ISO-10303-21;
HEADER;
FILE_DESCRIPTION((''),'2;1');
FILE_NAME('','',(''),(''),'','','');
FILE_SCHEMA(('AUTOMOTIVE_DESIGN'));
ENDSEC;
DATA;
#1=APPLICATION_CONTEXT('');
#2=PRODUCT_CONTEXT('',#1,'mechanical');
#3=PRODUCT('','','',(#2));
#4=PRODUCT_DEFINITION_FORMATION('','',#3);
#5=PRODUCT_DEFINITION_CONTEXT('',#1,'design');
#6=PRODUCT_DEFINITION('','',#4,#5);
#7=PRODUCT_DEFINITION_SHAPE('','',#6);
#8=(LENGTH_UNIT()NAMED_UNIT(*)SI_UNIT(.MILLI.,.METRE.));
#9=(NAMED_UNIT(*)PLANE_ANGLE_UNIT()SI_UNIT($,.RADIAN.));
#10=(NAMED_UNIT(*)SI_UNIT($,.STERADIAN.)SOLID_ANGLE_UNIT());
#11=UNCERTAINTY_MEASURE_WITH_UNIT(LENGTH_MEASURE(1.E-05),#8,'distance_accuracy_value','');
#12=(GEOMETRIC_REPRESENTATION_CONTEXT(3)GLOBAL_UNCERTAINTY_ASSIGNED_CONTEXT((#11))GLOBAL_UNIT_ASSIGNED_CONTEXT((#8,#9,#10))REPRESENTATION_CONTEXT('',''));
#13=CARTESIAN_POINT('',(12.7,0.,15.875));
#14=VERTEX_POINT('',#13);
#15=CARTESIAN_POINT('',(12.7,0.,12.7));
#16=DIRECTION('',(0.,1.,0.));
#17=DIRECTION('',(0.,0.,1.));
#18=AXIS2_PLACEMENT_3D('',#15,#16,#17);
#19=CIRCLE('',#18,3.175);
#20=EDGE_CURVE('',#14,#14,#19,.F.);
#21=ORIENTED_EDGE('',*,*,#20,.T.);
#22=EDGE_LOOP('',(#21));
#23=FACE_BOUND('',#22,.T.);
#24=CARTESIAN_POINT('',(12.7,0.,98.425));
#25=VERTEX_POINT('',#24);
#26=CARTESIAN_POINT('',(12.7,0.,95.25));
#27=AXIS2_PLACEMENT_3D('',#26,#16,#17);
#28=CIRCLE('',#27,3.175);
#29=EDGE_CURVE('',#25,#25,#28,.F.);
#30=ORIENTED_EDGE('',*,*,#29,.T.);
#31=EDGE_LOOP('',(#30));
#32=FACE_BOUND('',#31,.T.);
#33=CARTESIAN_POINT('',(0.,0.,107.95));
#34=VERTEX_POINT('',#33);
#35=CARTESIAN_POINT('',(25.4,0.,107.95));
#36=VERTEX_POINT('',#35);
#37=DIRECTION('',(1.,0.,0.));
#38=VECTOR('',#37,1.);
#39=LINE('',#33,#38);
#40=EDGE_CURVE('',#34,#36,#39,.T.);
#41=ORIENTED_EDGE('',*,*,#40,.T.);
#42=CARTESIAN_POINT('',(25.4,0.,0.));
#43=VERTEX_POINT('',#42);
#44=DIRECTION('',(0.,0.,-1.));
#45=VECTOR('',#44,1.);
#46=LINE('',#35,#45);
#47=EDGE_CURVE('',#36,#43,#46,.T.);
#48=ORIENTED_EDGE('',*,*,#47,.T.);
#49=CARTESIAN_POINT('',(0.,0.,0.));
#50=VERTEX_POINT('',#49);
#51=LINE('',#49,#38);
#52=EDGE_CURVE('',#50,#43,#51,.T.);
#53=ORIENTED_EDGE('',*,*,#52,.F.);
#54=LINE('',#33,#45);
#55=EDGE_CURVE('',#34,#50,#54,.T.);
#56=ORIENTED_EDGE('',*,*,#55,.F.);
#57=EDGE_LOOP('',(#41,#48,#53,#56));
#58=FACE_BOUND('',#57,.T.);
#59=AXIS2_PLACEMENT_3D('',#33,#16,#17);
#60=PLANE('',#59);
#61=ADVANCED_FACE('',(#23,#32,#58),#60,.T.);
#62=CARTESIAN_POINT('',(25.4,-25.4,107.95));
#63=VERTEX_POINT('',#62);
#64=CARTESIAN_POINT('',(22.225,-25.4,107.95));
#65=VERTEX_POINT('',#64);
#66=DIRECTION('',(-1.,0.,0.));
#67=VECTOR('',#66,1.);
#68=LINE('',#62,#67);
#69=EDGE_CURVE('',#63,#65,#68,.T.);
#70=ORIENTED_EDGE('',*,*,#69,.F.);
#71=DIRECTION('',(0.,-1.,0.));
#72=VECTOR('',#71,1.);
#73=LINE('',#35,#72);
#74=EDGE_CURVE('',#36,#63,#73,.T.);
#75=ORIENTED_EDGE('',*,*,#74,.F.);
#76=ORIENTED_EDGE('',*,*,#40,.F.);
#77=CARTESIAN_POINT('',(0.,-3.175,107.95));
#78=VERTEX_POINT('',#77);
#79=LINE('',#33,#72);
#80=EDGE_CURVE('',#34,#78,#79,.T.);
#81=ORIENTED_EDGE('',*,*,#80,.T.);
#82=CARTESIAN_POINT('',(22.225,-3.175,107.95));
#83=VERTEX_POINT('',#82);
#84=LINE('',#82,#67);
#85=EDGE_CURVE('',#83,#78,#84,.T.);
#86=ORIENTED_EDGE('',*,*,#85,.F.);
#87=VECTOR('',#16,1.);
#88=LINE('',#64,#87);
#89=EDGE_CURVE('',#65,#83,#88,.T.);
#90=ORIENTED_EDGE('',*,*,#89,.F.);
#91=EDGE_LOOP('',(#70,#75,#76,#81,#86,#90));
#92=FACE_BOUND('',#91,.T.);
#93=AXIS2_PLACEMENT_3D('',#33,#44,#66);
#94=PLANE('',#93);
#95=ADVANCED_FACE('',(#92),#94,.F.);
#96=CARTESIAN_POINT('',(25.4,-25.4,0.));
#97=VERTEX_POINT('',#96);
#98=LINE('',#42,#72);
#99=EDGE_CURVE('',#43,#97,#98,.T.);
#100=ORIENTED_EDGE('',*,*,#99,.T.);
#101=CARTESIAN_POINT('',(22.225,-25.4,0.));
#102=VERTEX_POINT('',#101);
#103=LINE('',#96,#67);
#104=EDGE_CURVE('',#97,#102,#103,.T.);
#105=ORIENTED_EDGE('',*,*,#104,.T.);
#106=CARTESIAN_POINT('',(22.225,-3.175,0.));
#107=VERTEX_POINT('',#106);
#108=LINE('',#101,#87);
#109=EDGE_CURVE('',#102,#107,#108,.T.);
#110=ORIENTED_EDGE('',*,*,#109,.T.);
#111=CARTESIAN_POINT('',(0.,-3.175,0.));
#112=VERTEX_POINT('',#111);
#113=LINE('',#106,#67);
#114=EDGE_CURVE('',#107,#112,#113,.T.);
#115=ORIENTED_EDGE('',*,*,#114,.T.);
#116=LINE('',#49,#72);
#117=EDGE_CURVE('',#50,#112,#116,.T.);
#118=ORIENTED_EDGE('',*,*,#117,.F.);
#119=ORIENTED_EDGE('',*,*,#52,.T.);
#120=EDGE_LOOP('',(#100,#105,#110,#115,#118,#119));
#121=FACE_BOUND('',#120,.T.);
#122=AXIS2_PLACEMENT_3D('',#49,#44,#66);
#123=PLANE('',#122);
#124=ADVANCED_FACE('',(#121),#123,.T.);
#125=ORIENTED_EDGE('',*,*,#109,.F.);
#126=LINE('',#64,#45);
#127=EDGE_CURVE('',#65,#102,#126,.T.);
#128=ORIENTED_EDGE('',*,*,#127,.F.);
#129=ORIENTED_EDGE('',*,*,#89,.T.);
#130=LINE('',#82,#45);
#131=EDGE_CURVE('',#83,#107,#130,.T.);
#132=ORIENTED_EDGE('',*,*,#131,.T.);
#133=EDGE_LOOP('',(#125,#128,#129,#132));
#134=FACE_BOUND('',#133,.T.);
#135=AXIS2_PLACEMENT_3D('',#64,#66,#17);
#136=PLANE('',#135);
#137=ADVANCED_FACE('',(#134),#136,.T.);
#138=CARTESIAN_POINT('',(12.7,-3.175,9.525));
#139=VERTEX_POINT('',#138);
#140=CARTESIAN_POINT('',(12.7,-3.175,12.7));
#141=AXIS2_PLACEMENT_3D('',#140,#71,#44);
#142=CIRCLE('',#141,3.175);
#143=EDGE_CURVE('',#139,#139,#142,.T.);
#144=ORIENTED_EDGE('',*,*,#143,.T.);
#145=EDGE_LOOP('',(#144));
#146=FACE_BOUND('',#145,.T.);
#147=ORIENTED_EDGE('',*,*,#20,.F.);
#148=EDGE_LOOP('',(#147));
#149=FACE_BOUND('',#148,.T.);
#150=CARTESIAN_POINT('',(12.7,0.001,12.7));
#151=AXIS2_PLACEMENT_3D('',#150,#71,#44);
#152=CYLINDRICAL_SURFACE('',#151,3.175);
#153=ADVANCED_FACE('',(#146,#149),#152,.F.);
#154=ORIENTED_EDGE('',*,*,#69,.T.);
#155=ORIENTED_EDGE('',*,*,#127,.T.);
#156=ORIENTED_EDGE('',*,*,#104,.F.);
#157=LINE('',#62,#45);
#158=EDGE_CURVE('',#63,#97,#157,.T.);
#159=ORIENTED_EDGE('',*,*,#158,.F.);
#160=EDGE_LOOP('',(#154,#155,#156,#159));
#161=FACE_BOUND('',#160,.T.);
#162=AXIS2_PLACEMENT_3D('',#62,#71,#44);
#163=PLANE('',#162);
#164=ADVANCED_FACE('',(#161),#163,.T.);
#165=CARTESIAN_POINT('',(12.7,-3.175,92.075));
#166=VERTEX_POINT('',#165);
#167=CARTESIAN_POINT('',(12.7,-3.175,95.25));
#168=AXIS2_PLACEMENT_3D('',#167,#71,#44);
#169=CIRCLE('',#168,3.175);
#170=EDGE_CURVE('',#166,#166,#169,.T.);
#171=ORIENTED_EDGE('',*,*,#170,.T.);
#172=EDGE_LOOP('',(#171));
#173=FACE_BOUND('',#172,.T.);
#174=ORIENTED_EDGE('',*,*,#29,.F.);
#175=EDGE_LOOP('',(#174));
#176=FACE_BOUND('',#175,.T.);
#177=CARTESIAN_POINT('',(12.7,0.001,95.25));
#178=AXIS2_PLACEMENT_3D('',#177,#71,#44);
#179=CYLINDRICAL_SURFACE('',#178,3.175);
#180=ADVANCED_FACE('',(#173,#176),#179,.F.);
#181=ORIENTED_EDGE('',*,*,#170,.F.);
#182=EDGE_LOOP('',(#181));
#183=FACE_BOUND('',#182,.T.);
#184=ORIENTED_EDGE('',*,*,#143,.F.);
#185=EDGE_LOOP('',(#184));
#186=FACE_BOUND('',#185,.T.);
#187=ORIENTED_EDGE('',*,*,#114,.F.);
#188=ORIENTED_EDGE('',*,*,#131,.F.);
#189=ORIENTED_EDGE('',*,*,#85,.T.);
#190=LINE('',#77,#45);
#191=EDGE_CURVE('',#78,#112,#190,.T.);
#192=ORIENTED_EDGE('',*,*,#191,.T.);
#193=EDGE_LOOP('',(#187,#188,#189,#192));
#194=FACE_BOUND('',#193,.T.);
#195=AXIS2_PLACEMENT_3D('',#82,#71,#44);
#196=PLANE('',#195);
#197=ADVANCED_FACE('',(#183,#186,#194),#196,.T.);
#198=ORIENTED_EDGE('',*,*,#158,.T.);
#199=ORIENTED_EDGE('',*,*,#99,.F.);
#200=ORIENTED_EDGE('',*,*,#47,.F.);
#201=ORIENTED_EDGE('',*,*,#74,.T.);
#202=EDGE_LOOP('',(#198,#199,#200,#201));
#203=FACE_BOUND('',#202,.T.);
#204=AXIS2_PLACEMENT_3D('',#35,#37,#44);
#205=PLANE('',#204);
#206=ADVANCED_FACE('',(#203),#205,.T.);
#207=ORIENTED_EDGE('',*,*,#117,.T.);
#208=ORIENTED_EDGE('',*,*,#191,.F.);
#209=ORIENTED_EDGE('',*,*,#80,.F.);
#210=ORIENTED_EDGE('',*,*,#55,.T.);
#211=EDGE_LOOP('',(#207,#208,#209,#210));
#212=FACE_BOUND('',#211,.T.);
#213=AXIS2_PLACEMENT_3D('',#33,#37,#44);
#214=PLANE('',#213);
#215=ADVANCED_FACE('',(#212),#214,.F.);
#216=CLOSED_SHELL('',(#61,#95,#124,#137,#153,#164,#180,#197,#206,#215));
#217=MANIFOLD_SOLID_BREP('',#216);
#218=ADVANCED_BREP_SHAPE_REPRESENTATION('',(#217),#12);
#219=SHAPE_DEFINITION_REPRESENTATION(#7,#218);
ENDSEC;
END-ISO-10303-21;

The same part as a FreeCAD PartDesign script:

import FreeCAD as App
import Part
import Sketcher

V = App.Vector
Q = App.Units.Quantity


def add_polygon(sketch, points):
    """Adds a closed chain of lines whose ends are joined by coincident constraints."""
    first, n = sketch.GeometryCount, len(points)
    for a, b in zip(points, points[1:] + points[:1]):
        sketch.addGeometry(Part.LineSegment(App.Vector(*a, 0), App.Vector(*b, 0)), False)
    for i in range(n):
        sketch.addConstraint(Sketcher.Constraint("Coincident", first + i, 2, first + (i + 1) % n, 1))

doc = App.newDocument("Part")
params = doc.addObject("Spreadsheet::Sheet", "Params")
for row, (alias, value) in enumerate([
    ("sketch1_width", "1 in"),
    ("sketch1_width2", "0.875 in"),
    ("pad1_length", "4.25 in"),
    ("sketch2_diameter", "0.25 in"),
    ("sketch3_diameter", "0.25 in"),
], start=1):
    params.set(f"A{row}", alias)
    params.set(f"B{row}", "=" + value)
    params.setAlias(f"B{row}", alias)

body = doc.addObject("PartDesign::Body", "Body")

# Sketch on XY plane
sketch1 = body.newObject("Sketcher::SketchObject", "Sketch")
sketch1.AttachmentSupport = (doc.getObject("XY_Plane"), [""])
sketch1.MapMode = "FlatFace"
add_polygon(sketch1, [(25.4, 0), (0, 0), (0, -3.175), (22.225, -3.175), (22.225, -25.4), (25.4, -25.4)])  # lines 0-5
sketch1.addConstraint([
    Sketcher.Constraint("Horizontal", 0),
    Sketcher.Constraint("Vertical", 1),
    Sketcher.Constraint("Horizontal", 2),
    Sketcher.Constraint("Vertical", 3),
    Sketcher.Constraint("Horizontal", 4),
    Sketcher.Constraint("Vertical", 5),
    Sketcher.Constraint("Coincident", 0, 2, -1, 1),
    Sketcher.Constraint("Equal", 4, 1),
    Sketcher.Constraint("Equal", 2, 3),
    Sketcher.Constraint("DistanceX", 0, 2, 0, 1, Q("1 in")),
    Sketcher.Constraint("DistanceX", 2, 1, 2, 2, Q("0.875 in")),
])
sketch1.setExpression("Constraints[15]", "Params.sketch1_width")
sketch1.setExpression("Constraints[16]", "Params.sketch1_width2")
pad1 = body.newObject("PartDesign::Pad", "Pad")
pad1.Profile = sketch1
pad1.setExpression("Length", "Params.pad1_length")

# Sketch on XZ plane
sketch2 = body.newObject("Sketcher::SketchObject", "Sketch001")
sketch2.AttachmentSupport = (doc.getObject("XZ_Plane"), [""])
sketch2.MapMode = "FlatFace"
sketch2.AttachmentOffset = App.Placement(V(0, 0, 0.125 * 25.4), App.Rotation())
sketch2.addGeometry(Part.Circle(V(12.7, 12.7, 0), V(0, 0, 1), 3.175), False)
sketch2.addConstraint([
    Sketcher.Constraint("Diameter", 0, Q("0.25 in")),
    Sketcher.Constraint("DistanceX", -1, 1, 0, 3, Q("0.5 in")),
    Sketcher.Constraint("DistanceY", -1, 1, 0, 3, Q("0.5 in")),
])
sketch2.setExpression("Constraints[0]", "Params.sketch2_diameter")
pocket1 = body.newObject("PartDesign::Pocket", "Pocket")
pocket1.Profile = sketch2
pocket1.Type = "UpToFirst"

# Sketch on XZ plane
sketch3 = body.newObject("Sketcher::SketchObject", "Sketch002")
sketch3.AttachmentSupport = (doc.getObject("XZ_Plane"), [""])
sketch3.MapMode = "FlatFace"
sketch3.AttachmentOffset = App.Placement(V(0, 0, 0.125 * 25.4), App.Rotation())
sketch3.addGeometry(Part.Circle(V(12.7, 95.25, 0), V(0, 0, 1), 3.175), False)
sketch3.addConstraint([
    Sketcher.Constraint("Diameter", 0, Q("0.25 in")),
    Sketcher.Constraint("DistanceX", -1, 1, 0, 3, Q("0.5 in")),
    Sketcher.Constraint("DistanceY", -1, 1, 0, 3, Q("3.75 in")),
])
sketch3.setExpression("Constraints[0]", "Params.sketch3_diameter")
pocket2 = body.newObject("PartDesign::Pocket", "Pocket001")
pocket2.Profile = sketch3
pocket2.Type = "UpToFirst"

doc.recompute()
